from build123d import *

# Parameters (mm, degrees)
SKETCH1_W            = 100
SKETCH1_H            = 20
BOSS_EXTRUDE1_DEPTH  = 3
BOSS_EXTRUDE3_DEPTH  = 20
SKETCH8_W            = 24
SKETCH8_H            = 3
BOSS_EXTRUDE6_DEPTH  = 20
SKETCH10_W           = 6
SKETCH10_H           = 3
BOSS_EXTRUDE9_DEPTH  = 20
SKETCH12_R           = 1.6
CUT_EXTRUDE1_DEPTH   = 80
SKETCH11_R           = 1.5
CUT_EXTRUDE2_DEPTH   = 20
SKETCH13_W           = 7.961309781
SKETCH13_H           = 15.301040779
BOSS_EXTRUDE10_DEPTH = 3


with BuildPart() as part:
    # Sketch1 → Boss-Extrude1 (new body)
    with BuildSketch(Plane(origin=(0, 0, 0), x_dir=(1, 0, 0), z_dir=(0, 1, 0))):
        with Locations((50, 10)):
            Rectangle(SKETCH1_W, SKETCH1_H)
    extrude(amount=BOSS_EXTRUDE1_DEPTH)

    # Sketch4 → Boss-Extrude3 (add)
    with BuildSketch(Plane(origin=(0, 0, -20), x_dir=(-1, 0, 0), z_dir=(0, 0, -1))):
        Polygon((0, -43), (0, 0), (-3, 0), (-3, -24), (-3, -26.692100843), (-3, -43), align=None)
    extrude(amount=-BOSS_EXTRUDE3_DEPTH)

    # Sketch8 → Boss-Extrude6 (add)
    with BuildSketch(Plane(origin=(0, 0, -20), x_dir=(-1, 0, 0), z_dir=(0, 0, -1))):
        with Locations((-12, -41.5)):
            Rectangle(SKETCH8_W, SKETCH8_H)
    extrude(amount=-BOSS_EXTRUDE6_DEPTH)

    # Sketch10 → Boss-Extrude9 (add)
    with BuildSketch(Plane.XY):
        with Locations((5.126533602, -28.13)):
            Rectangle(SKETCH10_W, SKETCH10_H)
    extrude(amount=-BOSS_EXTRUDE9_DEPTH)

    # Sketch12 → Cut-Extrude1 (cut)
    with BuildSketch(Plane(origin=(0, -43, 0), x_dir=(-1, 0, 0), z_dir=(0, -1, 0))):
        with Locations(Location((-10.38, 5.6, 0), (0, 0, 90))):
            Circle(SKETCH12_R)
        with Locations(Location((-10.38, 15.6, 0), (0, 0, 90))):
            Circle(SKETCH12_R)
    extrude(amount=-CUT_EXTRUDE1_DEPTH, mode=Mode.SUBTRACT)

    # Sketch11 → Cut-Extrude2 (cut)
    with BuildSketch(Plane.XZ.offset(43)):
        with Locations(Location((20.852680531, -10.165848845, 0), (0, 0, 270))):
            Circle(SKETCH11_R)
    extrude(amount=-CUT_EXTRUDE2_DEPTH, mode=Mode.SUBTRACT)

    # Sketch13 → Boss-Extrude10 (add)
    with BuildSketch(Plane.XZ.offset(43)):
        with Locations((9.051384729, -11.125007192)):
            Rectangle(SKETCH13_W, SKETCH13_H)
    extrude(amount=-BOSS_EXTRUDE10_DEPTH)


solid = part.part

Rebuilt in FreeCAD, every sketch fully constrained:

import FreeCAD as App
import Part
import Sketcher
from FreeCAD import Vector

doc = App.newDocument("Part")
params = doc.addObject("Spreadsheet::Sheet", "Params")
for row, (alias, value) in enumerate([
    ("sketch1_width", "100 mm"),
    ("sketch1_height", "20 mm"),
    ("pad1_length", "3 mm"),
    ("sketch2_width", "3 mm"),
    ("sketch2_height", "43 mm"),
    ("pad2_length", "20 mm"),
    ("sketch3_width", "24 mm"),
    ("sketch3_height", "3 mm"),
    ("pad3_length", "20 mm"),
    ("sketch4_width", "6 mm"),
    ("sketch4_height", "3 mm"),
    ("pad4_length", "20 mm"),
    ("sketch5_diameter", "3.2 mm"),
    ("pocket1_length", "80 mm"),
    ("sketch6_diameter", "3 mm"),
    ("pocket2_length", "20 mm"),
    ("pad5_length", "3 mm"),
], start=1):
    params.set(f"A{row}", alias)
    params.set(f"B{row}", "=" + value)
    params.setAlias(f"B{row}", alias)

body = doc.addObject("PartDesign::Body", "Body")

# Sketch on XZ plane
sketch1 = body.newObject("Sketcher::SketchObject", "Sketch")
sketch1.AttachmentSupport = (doc.getObject("XZ_Plane"), [""])
sketch1.MapMode = "FlatFace"
sketch1.addGeometry([
    Part.LineSegment(Vector(0, -20, 0), Vector(0, 0, 0)),
    Part.LineSegment(Vector(0, 0, 0), Vector(100, 0, 0)),
    Part.LineSegment(Vector(100, 0, 0), Vector(100, -20, 0)),
    Part.LineSegment(Vector(100, -20, 0), Vector(0, -20, 0)),
], False)
sketch1.addConstraint([
    Sketcher.Constraint("Coincident", 0, 2, 1, 1),
    Sketcher.Constraint("Coincident", 1, 2, 2, 1),
    Sketcher.Constraint("Coincident", 2, 2, 3, 1),
    Sketcher.Constraint("Coincident", 3, 2, 0, 1),
    Sketcher.Constraint("Vertical", 0),
    Sketcher.Constraint("Horizontal", 1),
    Sketcher.Constraint("Vertical", 2),
    Sketcher.Constraint("Horizontal", 3),
    Sketcher.Constraint("Coincident", 0, 2, -1, 1),
    Sketcher.Constraint("DistanceX", 1, 1, 1, 2, 100.0),
    Sketcher.Constraint("DistanceY", 0, 1, 0, 2, 20.0),
])
sketch1.setExpression("Constraints[9]", "Params.sketch1_width")
sketch1.setExpression("Constraints[10]", "Params.sketch1_height")
pad1 = body.newObject("PartDesign::Pad", "Pad")
pad1.Profile = sketch1
pad1.setExpression("Length", "Params.pad1_length")
pad1.Reversed = True

# Sketch on XY plane
sketch2 = body.newObject("Sketcher::SketchObject", "Sketch001")
sketch2.AttachmentSupport = (doc.getObject("XY_Plane"), [""])
sketch2.MapMode = "FlatFace"
sketch2.AttachmentOffset = App.Placement(Vector(0, 0, -20), App.Rotation())
sketch2.addGeometry([
    Part.LineSegment(Vector(0, -43, 0), Vector(0, 0, 0)),
    Part.LineSegment(Vector(0, 0, 0), Vector(3, 0, 0)),
    Part.LineSegment(Vector(3, 0, 0), Vector(3, -43, 0)),
    Part.LineSegment(Vector(3, -43, 0), Vector(0, -43, 0)),
], False)
sketch2.addConstraint([
    Sketcher.Constraint("Coincident", 0, 2, 1, 1),
    Sketcher.Constraint("Coincident", 1, 2, 2, 1),
    Sketcher.Constraint("Coincident", 2, 2, 3, 1),
    Sketcher.Constraint("Coincident", 3, 2, 0, 1),
    Sketcher.Constraint("Vertical", 0),
    Sketcher.Constraint("Horizontal", 1),
    Sketcher.Constraint("Vertical", 2),
    Sketcher.Constraint("Horizontal", 3),
    Sketcher.Constraint("Coincident", 0, 2, -1, 1),
    Sketcher.Constraint("DistanceX", 1, 1, 1, 2, 3.0),
    Sketcher.Constraint("DistanceY", 0, 1, 0, 2, 43.0),
])
sketch2.setExpression("Constraints[9]", "Params.sketch2_width")
sketch2.setExpression("Constraints[10]", "Params.sketch2_height")
pad2 = body.newObject("PartDesign::Pad", "Pad001")
pad2.Profile = sketch2
pad2.setExpression("Length", "Params.pad2_length")

# Sketch on XY plane
sketch3 = body.newObject("Sketcher::SketchObject", "Sketch002")
sketch3.AttachmentSupport = (doc.getObject("XY_Plane"), [""])
sketch3.MapMode = "FlatFace"
sketch3.AttachmentOffset = App.Placement(Vector(0, 0, -20), App.Rotation())
sketch3.addGeometry([
    Part.LineSegment(Vector(24, -40, 0), Vector(24, -43, 0)),
    Part.LineSegment(Vector(24, -43, 0), Vector(0, -43, 0)),
    Part.LineSegment(Vector(0, -43, 0), Vector(0, -40, 0)),
    Part.LineSegment(Vector(0, -40, 0), Vector(24, -40, 0)),
], False)
sketch3.addConstraint([
    Sketcher.Constraint("Coincident", 0, 2, 1, 1),
    Sketcher.Constraint("Coincident", 1, 2, 2, 1),
    Sketcher.Constraint("Coincident", 2, 2, 3, 1),
    Sketcher.Constraint("Coincident", 3, 2, 0, 1),
    Sketcher.Constraint("Vertical", 0),
    Sketcher.Constraint("Horizontal", 1),
    Sketcher.Constraint("Vertical", 2),
    Sketcher.Constraint("Horizontal", 3),
    Sketcher.Constraint("PointOnObject", 1, 2, -2),
    Sketcher.Constraint("DistanceX", 1, 2, 1, 1, 24.0),
    Sketcher.Constraint("DistanceY", 0, 2, 0, 1, 3.0),
    Sketcher.Constraint("DistanceY", 0, 2, -1, 1, 43.0),
])
sketch3.setExpression("Constraints[9]", "Params.sketch3_width")
sketch3.setExpression("Constraints[10]", "Params.sketch3_height")
pad3 = body.newObject("PartDesign::Pad", "Pad002")
pad3.Profile = sketch3
pad3.setExpression("Length", "Params.pad3_length")

# Sketch on XY plane
sketch4 = body.newObject("Sketcher::SketchObject", "Sketch003")
sketch4.AttachmentSupport = (doc.getObject("XY_Plane"), [""])
sketch4.MapMode = "FlatFace"
sketch4.addGeometry([
    Part.LineSegment(Vector(2.126534, -26.63, 0), Vector(2.126534, -29.63, 0)),
    Part.LineSegment(Vector(2.126534, -29.63, 0), Vector(8.126534, -29.63, 0)),
    Part.LineSegment(Vector(8.126534, -29.63, 0), Vector(8.126534, -26.63, 0)),
    Part.LineSegment(Vector(8.126534, -26.63, 0), Vector(2.126534, -26.63, 0)),
], False)
sketch4.addConstraint([
    Sketcher.Constraint("Coincident", 0, 2, 1, 1),
    Sketcher.Constraint("Coincident", 1, 2, 2, 1),
    Sketcher.Constraint("Coincident", 2, 2, 3, 1),
    Sketcher.Constraint("Coincident", 3, 2, 0, 1),
    Sketcher.Constraint("Vertical", 0),
    Sketcher.Constraint("Horizontal", 1),
    Sketcher.Constraint("Vertical", 2),
    Sketcher.Constraint("Horizontal", 3),
    Sketcher.Constraint("DistanceX", 1, 1, 1, 2, 6.0),
    Sketcher.Constraint("DistanceY", 0, 2, 0, 1, 3.0),
    Sketcher.Constraint("DistanceY", 0, 2, -1, 1, 29.63),
    Sketcher.Constraint("DistanceX", -1, 1, 0, 2, 2.126534),
])
sketch4.setExpression("Constraints[8]", "Params.sketch4_width")
sketch4.setExpression("Constraints[9]", "Params.sketch4_height")
pad4 = body.newObject("PartDesign::Pad", "Pad003")
pad4.Profile = sketch4
pad4.setExpression("Length", "Params.pad4_length")
pad4.Reversed = True

# Sketch on XZ plane
sketch5 = body.newObject("Sketcher::SketchObject", "Sketch004")
sketch5.AttachmentSupport = (doc.getObject("XZ_Plane"), [""])
sketch5.MapMode = "FlatFace"
sketch5.AttachmentOffset = App.Placement(Vector(0, 0, 43), App.Rotation())
sketch5.addGeometry([
    Part.Circle(Vector(10.38, -5.6, 0), Vector(0, 0, 1), 1.6),
    Part.Circle(Vector(10.38, -15.6, 0), Vector(0, 0, 1), 1.6),
], False)
sketch5.addConstraint([
    Sketcher.Constraint("Equal", 0, 1),
    Sketcher.Constraint("Vertical", 0, 3, 1, 3),
    Sketcher.Constraint("Diameter", 0, 3.2),
    Sketcher.Constraint("DistanceY", 1, 3, 0, 3, 10.0),
    Sketcher.Constraint("DistanceY", 0, 3, -1, 1, 5.6),
    Sketcher.Constraint("DistanceX", -1, 1, 0, 3, 10.38),
])
sketch5.setExpression("Constraints[2]", "Params.sketch5_diameter")
pocket1 = body.newObject("PartDesign::Pocket", "Pocket")
pocket1.Profile = sketch5
pocket1.setExpression("Length", "Params.pocket1_length")

# Sketch on XZ plane
sketch6 = body.newObject("Sketcher::SketchObject", "Sketch005")
sketch6.AttachmentSupport = (doc.getObject("XZ_Plane"), [""])
sketch6.MapMode = "FlatFace"
sketch6.AttachmentOffset = App.Placement(Vector(0, 0, 43), App.Rotation())
sketch6.addGeometry(Part.Circle(Vector(20.852681, -10.165849, 0), Vector(0, 0, 1), 1.5), False)
sketch6.addConstraint([
    Sketcher.Constraint("Diameter", 0, 3.0),
    Sketcher.Constraint("DistanceX", -1, 1, 0, 3, 20.852681),
    Sketcher.Constraint("DistanceY", 0, 3, -1, 1, 10.165849),
])
sketch6.setExpression("Constraints[0]", "Params.sketch6_diameter")
pocket2 = body.newObject("PartDesign::Pocket", "Pocket001")
pocket2.Profile = sketch6
pocket2.setExpression("Length", "Params.pocket2_length")

# Sketch on XZ plane
sketch7 = body.newObject("Sketcher::SketchObject", "Sketch006")
sketch7.AttachmentSupport = (doc.getObject("XZ_Plane"), [""])
sketch7.MapMode = "FlatFace"
sketch7.AttachmentOffset = App.Placement(Vector(0, 0, 43), App.Rotation())
sketch7.addGeometry([
    Part.LineSegment(Vector(5.07073, -3.474487, 0), Vector(5.07073, -18.775528, 0)),
    Part.LineSegment(Vector(5.07073, -18.775528, 0), Vector(13.03204, -18.775528, 0)),
    Part.LineSegment(Vector(13.03204, -18.775528, 0), Vector(13.03204, -3.474487, 0)),
    Part.LineSegment(Vector(13.03204, -3.474487, 0), Vector(5.07073, -3.474487, 0)),
], False)
sketch7.addConstraint([
    Sketcher.Constraint("Coincident", 0, 2, 1, 1),
    Sketcher.Constraint("Coincident", 1, 2, 2, 1),
    Sketcher.Constraint("Coincident", 2, 2, 3, 1),
    Sketcher.Constraint("Coincident", 3, 2, 0, 1),
    Sketcher.Constraint("Vertical", 0),
    Sketcher.Constraint("Horizontal", 1),
    Sketcher.Constraint("Vertical", 2),
    Sketcher.Constraint("Horizontal", 3),
    Sketcher.Constraint("DistanceX", 1, 1, 1, 2, 7.96131),
    Sketcher.Constraint("DistanceY", 0, 2, 0, 1, 15.301041),
    Sketcher.Constraint("DistanceX", -1, 1, 0, 2, 5.07073),
    Sketcher.Constraint("DistanceY", 0, 2, -1, 1, 18.775528),
])
pad5 = body.newObject("PartDesign::Pad", "Pad004")
pad5.Profile = sketch7
pad5.setExpression("Length", "Params.pad5_length")
pad5.Reversed = True

doc.recompute()
